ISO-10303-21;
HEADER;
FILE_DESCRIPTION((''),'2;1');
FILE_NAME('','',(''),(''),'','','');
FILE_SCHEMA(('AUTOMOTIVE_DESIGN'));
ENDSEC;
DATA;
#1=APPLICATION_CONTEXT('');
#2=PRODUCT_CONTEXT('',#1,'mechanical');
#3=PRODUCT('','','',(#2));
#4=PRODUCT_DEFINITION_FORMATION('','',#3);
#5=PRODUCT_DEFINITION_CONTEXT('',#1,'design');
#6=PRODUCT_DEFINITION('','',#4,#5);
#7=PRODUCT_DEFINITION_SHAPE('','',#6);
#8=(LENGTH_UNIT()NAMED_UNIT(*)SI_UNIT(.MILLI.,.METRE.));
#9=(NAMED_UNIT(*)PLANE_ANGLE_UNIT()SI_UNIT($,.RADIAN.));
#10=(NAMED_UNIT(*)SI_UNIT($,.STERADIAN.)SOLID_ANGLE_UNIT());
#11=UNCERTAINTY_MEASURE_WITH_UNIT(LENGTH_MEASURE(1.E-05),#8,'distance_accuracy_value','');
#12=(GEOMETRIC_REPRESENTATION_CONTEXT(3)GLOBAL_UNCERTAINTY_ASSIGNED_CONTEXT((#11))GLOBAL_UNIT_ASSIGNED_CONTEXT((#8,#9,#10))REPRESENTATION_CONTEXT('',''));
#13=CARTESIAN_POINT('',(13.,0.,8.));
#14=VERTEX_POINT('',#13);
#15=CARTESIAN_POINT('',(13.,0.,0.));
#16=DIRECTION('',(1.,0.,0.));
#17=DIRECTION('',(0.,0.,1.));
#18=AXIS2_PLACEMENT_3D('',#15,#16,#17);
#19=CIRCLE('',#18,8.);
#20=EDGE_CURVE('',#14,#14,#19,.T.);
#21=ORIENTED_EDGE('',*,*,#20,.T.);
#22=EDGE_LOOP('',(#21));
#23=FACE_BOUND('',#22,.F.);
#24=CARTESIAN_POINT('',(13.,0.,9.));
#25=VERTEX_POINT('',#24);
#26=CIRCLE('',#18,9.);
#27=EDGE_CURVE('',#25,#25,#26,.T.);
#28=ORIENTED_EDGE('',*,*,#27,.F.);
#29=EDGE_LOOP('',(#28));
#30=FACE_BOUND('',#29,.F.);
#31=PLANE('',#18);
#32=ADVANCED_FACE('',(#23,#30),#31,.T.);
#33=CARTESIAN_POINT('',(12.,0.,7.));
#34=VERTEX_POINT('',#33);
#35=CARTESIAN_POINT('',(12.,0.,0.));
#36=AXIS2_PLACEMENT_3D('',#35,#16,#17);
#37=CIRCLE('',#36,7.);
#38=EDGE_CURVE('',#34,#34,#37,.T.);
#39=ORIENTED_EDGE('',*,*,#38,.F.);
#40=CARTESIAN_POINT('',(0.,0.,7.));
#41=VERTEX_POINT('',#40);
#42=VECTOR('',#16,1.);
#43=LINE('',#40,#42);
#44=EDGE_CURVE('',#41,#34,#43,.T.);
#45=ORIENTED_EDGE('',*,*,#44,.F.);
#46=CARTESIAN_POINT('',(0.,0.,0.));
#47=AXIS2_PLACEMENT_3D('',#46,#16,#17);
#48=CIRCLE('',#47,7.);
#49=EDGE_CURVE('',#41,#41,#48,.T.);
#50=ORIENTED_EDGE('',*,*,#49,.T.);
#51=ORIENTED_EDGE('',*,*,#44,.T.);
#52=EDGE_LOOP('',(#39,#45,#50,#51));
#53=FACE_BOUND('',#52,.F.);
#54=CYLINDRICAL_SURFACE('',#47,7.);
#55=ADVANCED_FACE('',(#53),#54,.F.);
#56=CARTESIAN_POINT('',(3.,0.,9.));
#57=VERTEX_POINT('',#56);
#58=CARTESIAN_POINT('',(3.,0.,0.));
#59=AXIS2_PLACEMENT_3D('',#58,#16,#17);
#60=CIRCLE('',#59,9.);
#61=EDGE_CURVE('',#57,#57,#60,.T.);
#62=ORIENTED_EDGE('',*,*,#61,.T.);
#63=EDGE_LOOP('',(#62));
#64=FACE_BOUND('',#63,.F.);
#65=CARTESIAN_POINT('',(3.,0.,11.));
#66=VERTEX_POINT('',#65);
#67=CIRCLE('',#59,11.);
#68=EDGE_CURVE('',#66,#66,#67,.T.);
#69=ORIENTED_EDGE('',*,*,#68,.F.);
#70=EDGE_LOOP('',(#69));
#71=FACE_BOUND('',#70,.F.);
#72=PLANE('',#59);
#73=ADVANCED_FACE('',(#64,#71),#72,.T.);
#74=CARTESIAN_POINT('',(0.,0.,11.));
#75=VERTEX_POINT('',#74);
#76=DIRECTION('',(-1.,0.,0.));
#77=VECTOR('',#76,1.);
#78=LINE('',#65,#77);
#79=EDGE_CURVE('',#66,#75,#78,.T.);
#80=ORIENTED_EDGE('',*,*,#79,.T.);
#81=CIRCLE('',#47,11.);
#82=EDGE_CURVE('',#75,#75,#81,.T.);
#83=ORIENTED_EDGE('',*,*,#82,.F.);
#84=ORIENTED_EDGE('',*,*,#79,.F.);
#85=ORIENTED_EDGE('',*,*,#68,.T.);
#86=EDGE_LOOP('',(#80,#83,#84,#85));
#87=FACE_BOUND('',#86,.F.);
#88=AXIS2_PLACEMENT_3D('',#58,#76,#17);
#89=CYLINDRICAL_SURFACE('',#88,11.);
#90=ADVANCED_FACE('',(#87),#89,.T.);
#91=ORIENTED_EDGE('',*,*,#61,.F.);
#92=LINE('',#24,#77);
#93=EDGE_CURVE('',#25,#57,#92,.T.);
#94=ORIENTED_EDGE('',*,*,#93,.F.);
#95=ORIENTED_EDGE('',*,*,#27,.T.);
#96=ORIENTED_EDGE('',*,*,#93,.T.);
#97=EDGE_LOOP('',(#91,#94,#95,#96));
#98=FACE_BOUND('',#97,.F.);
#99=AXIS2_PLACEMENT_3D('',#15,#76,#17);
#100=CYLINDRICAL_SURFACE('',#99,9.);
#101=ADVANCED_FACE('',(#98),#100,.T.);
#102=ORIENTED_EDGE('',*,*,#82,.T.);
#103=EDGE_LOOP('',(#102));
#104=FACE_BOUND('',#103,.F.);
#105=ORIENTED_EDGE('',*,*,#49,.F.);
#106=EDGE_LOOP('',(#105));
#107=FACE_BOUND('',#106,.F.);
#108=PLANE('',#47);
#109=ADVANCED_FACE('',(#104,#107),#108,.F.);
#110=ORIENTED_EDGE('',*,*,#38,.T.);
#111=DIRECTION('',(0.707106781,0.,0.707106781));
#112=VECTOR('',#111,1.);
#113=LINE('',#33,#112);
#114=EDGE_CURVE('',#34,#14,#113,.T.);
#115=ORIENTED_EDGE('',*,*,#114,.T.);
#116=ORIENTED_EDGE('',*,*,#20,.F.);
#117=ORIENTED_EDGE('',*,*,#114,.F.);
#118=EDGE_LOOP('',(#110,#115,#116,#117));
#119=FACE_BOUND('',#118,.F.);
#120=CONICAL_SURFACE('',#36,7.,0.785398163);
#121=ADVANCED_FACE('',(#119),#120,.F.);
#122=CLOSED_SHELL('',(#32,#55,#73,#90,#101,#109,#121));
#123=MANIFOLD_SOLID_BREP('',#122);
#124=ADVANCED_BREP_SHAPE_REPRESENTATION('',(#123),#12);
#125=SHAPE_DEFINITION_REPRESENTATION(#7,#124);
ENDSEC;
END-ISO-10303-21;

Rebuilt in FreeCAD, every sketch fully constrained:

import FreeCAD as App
import Part
import Sketcher
from FreeCAD import Vector


def edges_at(feature, points):
    """Names of the edges that pass closest to the given points."""
    edges = feature.Shape.Edges
    near = lambda p: min(range(len(edges)), key=lambda i: edges[i].distToShape(Part.Vertex(*p))[0])
    return sorted({f"Edge{near(p) + 1}" for p in points})

doc = App.newDocument("Part")
body = doc.addObject("PartDesign::Body", "Body")

# Sketch on XZ plane
sketch1 = doc.addObject("Sketcher::SketchObject", "Sketch")
body.addObject(sketch1)
sketch1.AttachmentSupport = (doc.XZ_Plane, [""])
sketch1.MapMode = "FlatFace"
sketch1.addGeometry([
    Part.LineSegment(Vector(0, 11, 0), Vector(0, 7, 0)),  # 0
    Part.LineSegment(Vector(0, 7, 0), Vector(13, 7, 0)),  # 1
    Part.LineSegment(Vector(13, 7, 0), Vector(13, 9, 0)),  # 2
    Part.LineSegment(Vector(13, 9, 0), Vector(3, 9, 0)),  # 3
    Part.LineSegment(Vector(3, 9, 0), Vector(3, 11, 0)),  # 4
    Part.LineSegment(Vector(3, 11, 0), Vector(0, 11, 0)),  # 5
], False)
sketch1.addConstraint([
    Sketcher.Constraint("Coincident", 0, 2, 1, 1),
    Sketcher.Constraint("Coincident", 1, 2, 2, 1),
    Sketcher.Constraint("Coincident", 2, 2, 3, 1),
    Sketcher.Constraint("Coincident", 3, 2, 4, 1),
    Sketcher.Constraint("Coincident", 4, 2, 5, 1),
    Sketcher.Constraint("Coincident", 5, 2, 0, 1),
    Sketcher.Constraint("Vertical", 0),
    Sketcher.Constraint("Horizontal", 1),
    Sketcher.Constraint("Vertical", 2),
    Sketcher.Constraint("Horizontal", 3),
    Sketcher.Constraint("Vertical", 4),
    Sketcher.Constraint("Horizontal", 5),
    Sketcher.Constraint("PointOnObject", 0, 2, -2),
    Sketcher.Constraint("Equal", 2, 4),
    Sketcher.Constraint("DistanceX", 1, 1, 1, 2, 13.0),
    Sketcher.Constraint("DistanceX", 3, 2, 3, 1, 10.0),
    Sketcher.Constraint("DistanceY", 0, 2, 0, 1, 4.0),
    Sketcher.Constraint("DistanceY", -1, 1, 0, 2, 7.0),
])
revolution = doc.addObject("PartDesign::Revolution", "Revolution")
body.addObject(revolution)
revolution.Profile = sketch1
revolution.ReferenceAxis = (sketch1, ["H_Axis"])
revolution.Angle = 360
doc.recompute()

chamfer = doc.addObject("PartDesign::Chamfer", "Chamfer")
body.addObject(chamfer)
chamfer.Base = (revolution, edges_at(revolution, [(13, 0, -7)]))
chamfer.Size = 1

doc.recompute()
